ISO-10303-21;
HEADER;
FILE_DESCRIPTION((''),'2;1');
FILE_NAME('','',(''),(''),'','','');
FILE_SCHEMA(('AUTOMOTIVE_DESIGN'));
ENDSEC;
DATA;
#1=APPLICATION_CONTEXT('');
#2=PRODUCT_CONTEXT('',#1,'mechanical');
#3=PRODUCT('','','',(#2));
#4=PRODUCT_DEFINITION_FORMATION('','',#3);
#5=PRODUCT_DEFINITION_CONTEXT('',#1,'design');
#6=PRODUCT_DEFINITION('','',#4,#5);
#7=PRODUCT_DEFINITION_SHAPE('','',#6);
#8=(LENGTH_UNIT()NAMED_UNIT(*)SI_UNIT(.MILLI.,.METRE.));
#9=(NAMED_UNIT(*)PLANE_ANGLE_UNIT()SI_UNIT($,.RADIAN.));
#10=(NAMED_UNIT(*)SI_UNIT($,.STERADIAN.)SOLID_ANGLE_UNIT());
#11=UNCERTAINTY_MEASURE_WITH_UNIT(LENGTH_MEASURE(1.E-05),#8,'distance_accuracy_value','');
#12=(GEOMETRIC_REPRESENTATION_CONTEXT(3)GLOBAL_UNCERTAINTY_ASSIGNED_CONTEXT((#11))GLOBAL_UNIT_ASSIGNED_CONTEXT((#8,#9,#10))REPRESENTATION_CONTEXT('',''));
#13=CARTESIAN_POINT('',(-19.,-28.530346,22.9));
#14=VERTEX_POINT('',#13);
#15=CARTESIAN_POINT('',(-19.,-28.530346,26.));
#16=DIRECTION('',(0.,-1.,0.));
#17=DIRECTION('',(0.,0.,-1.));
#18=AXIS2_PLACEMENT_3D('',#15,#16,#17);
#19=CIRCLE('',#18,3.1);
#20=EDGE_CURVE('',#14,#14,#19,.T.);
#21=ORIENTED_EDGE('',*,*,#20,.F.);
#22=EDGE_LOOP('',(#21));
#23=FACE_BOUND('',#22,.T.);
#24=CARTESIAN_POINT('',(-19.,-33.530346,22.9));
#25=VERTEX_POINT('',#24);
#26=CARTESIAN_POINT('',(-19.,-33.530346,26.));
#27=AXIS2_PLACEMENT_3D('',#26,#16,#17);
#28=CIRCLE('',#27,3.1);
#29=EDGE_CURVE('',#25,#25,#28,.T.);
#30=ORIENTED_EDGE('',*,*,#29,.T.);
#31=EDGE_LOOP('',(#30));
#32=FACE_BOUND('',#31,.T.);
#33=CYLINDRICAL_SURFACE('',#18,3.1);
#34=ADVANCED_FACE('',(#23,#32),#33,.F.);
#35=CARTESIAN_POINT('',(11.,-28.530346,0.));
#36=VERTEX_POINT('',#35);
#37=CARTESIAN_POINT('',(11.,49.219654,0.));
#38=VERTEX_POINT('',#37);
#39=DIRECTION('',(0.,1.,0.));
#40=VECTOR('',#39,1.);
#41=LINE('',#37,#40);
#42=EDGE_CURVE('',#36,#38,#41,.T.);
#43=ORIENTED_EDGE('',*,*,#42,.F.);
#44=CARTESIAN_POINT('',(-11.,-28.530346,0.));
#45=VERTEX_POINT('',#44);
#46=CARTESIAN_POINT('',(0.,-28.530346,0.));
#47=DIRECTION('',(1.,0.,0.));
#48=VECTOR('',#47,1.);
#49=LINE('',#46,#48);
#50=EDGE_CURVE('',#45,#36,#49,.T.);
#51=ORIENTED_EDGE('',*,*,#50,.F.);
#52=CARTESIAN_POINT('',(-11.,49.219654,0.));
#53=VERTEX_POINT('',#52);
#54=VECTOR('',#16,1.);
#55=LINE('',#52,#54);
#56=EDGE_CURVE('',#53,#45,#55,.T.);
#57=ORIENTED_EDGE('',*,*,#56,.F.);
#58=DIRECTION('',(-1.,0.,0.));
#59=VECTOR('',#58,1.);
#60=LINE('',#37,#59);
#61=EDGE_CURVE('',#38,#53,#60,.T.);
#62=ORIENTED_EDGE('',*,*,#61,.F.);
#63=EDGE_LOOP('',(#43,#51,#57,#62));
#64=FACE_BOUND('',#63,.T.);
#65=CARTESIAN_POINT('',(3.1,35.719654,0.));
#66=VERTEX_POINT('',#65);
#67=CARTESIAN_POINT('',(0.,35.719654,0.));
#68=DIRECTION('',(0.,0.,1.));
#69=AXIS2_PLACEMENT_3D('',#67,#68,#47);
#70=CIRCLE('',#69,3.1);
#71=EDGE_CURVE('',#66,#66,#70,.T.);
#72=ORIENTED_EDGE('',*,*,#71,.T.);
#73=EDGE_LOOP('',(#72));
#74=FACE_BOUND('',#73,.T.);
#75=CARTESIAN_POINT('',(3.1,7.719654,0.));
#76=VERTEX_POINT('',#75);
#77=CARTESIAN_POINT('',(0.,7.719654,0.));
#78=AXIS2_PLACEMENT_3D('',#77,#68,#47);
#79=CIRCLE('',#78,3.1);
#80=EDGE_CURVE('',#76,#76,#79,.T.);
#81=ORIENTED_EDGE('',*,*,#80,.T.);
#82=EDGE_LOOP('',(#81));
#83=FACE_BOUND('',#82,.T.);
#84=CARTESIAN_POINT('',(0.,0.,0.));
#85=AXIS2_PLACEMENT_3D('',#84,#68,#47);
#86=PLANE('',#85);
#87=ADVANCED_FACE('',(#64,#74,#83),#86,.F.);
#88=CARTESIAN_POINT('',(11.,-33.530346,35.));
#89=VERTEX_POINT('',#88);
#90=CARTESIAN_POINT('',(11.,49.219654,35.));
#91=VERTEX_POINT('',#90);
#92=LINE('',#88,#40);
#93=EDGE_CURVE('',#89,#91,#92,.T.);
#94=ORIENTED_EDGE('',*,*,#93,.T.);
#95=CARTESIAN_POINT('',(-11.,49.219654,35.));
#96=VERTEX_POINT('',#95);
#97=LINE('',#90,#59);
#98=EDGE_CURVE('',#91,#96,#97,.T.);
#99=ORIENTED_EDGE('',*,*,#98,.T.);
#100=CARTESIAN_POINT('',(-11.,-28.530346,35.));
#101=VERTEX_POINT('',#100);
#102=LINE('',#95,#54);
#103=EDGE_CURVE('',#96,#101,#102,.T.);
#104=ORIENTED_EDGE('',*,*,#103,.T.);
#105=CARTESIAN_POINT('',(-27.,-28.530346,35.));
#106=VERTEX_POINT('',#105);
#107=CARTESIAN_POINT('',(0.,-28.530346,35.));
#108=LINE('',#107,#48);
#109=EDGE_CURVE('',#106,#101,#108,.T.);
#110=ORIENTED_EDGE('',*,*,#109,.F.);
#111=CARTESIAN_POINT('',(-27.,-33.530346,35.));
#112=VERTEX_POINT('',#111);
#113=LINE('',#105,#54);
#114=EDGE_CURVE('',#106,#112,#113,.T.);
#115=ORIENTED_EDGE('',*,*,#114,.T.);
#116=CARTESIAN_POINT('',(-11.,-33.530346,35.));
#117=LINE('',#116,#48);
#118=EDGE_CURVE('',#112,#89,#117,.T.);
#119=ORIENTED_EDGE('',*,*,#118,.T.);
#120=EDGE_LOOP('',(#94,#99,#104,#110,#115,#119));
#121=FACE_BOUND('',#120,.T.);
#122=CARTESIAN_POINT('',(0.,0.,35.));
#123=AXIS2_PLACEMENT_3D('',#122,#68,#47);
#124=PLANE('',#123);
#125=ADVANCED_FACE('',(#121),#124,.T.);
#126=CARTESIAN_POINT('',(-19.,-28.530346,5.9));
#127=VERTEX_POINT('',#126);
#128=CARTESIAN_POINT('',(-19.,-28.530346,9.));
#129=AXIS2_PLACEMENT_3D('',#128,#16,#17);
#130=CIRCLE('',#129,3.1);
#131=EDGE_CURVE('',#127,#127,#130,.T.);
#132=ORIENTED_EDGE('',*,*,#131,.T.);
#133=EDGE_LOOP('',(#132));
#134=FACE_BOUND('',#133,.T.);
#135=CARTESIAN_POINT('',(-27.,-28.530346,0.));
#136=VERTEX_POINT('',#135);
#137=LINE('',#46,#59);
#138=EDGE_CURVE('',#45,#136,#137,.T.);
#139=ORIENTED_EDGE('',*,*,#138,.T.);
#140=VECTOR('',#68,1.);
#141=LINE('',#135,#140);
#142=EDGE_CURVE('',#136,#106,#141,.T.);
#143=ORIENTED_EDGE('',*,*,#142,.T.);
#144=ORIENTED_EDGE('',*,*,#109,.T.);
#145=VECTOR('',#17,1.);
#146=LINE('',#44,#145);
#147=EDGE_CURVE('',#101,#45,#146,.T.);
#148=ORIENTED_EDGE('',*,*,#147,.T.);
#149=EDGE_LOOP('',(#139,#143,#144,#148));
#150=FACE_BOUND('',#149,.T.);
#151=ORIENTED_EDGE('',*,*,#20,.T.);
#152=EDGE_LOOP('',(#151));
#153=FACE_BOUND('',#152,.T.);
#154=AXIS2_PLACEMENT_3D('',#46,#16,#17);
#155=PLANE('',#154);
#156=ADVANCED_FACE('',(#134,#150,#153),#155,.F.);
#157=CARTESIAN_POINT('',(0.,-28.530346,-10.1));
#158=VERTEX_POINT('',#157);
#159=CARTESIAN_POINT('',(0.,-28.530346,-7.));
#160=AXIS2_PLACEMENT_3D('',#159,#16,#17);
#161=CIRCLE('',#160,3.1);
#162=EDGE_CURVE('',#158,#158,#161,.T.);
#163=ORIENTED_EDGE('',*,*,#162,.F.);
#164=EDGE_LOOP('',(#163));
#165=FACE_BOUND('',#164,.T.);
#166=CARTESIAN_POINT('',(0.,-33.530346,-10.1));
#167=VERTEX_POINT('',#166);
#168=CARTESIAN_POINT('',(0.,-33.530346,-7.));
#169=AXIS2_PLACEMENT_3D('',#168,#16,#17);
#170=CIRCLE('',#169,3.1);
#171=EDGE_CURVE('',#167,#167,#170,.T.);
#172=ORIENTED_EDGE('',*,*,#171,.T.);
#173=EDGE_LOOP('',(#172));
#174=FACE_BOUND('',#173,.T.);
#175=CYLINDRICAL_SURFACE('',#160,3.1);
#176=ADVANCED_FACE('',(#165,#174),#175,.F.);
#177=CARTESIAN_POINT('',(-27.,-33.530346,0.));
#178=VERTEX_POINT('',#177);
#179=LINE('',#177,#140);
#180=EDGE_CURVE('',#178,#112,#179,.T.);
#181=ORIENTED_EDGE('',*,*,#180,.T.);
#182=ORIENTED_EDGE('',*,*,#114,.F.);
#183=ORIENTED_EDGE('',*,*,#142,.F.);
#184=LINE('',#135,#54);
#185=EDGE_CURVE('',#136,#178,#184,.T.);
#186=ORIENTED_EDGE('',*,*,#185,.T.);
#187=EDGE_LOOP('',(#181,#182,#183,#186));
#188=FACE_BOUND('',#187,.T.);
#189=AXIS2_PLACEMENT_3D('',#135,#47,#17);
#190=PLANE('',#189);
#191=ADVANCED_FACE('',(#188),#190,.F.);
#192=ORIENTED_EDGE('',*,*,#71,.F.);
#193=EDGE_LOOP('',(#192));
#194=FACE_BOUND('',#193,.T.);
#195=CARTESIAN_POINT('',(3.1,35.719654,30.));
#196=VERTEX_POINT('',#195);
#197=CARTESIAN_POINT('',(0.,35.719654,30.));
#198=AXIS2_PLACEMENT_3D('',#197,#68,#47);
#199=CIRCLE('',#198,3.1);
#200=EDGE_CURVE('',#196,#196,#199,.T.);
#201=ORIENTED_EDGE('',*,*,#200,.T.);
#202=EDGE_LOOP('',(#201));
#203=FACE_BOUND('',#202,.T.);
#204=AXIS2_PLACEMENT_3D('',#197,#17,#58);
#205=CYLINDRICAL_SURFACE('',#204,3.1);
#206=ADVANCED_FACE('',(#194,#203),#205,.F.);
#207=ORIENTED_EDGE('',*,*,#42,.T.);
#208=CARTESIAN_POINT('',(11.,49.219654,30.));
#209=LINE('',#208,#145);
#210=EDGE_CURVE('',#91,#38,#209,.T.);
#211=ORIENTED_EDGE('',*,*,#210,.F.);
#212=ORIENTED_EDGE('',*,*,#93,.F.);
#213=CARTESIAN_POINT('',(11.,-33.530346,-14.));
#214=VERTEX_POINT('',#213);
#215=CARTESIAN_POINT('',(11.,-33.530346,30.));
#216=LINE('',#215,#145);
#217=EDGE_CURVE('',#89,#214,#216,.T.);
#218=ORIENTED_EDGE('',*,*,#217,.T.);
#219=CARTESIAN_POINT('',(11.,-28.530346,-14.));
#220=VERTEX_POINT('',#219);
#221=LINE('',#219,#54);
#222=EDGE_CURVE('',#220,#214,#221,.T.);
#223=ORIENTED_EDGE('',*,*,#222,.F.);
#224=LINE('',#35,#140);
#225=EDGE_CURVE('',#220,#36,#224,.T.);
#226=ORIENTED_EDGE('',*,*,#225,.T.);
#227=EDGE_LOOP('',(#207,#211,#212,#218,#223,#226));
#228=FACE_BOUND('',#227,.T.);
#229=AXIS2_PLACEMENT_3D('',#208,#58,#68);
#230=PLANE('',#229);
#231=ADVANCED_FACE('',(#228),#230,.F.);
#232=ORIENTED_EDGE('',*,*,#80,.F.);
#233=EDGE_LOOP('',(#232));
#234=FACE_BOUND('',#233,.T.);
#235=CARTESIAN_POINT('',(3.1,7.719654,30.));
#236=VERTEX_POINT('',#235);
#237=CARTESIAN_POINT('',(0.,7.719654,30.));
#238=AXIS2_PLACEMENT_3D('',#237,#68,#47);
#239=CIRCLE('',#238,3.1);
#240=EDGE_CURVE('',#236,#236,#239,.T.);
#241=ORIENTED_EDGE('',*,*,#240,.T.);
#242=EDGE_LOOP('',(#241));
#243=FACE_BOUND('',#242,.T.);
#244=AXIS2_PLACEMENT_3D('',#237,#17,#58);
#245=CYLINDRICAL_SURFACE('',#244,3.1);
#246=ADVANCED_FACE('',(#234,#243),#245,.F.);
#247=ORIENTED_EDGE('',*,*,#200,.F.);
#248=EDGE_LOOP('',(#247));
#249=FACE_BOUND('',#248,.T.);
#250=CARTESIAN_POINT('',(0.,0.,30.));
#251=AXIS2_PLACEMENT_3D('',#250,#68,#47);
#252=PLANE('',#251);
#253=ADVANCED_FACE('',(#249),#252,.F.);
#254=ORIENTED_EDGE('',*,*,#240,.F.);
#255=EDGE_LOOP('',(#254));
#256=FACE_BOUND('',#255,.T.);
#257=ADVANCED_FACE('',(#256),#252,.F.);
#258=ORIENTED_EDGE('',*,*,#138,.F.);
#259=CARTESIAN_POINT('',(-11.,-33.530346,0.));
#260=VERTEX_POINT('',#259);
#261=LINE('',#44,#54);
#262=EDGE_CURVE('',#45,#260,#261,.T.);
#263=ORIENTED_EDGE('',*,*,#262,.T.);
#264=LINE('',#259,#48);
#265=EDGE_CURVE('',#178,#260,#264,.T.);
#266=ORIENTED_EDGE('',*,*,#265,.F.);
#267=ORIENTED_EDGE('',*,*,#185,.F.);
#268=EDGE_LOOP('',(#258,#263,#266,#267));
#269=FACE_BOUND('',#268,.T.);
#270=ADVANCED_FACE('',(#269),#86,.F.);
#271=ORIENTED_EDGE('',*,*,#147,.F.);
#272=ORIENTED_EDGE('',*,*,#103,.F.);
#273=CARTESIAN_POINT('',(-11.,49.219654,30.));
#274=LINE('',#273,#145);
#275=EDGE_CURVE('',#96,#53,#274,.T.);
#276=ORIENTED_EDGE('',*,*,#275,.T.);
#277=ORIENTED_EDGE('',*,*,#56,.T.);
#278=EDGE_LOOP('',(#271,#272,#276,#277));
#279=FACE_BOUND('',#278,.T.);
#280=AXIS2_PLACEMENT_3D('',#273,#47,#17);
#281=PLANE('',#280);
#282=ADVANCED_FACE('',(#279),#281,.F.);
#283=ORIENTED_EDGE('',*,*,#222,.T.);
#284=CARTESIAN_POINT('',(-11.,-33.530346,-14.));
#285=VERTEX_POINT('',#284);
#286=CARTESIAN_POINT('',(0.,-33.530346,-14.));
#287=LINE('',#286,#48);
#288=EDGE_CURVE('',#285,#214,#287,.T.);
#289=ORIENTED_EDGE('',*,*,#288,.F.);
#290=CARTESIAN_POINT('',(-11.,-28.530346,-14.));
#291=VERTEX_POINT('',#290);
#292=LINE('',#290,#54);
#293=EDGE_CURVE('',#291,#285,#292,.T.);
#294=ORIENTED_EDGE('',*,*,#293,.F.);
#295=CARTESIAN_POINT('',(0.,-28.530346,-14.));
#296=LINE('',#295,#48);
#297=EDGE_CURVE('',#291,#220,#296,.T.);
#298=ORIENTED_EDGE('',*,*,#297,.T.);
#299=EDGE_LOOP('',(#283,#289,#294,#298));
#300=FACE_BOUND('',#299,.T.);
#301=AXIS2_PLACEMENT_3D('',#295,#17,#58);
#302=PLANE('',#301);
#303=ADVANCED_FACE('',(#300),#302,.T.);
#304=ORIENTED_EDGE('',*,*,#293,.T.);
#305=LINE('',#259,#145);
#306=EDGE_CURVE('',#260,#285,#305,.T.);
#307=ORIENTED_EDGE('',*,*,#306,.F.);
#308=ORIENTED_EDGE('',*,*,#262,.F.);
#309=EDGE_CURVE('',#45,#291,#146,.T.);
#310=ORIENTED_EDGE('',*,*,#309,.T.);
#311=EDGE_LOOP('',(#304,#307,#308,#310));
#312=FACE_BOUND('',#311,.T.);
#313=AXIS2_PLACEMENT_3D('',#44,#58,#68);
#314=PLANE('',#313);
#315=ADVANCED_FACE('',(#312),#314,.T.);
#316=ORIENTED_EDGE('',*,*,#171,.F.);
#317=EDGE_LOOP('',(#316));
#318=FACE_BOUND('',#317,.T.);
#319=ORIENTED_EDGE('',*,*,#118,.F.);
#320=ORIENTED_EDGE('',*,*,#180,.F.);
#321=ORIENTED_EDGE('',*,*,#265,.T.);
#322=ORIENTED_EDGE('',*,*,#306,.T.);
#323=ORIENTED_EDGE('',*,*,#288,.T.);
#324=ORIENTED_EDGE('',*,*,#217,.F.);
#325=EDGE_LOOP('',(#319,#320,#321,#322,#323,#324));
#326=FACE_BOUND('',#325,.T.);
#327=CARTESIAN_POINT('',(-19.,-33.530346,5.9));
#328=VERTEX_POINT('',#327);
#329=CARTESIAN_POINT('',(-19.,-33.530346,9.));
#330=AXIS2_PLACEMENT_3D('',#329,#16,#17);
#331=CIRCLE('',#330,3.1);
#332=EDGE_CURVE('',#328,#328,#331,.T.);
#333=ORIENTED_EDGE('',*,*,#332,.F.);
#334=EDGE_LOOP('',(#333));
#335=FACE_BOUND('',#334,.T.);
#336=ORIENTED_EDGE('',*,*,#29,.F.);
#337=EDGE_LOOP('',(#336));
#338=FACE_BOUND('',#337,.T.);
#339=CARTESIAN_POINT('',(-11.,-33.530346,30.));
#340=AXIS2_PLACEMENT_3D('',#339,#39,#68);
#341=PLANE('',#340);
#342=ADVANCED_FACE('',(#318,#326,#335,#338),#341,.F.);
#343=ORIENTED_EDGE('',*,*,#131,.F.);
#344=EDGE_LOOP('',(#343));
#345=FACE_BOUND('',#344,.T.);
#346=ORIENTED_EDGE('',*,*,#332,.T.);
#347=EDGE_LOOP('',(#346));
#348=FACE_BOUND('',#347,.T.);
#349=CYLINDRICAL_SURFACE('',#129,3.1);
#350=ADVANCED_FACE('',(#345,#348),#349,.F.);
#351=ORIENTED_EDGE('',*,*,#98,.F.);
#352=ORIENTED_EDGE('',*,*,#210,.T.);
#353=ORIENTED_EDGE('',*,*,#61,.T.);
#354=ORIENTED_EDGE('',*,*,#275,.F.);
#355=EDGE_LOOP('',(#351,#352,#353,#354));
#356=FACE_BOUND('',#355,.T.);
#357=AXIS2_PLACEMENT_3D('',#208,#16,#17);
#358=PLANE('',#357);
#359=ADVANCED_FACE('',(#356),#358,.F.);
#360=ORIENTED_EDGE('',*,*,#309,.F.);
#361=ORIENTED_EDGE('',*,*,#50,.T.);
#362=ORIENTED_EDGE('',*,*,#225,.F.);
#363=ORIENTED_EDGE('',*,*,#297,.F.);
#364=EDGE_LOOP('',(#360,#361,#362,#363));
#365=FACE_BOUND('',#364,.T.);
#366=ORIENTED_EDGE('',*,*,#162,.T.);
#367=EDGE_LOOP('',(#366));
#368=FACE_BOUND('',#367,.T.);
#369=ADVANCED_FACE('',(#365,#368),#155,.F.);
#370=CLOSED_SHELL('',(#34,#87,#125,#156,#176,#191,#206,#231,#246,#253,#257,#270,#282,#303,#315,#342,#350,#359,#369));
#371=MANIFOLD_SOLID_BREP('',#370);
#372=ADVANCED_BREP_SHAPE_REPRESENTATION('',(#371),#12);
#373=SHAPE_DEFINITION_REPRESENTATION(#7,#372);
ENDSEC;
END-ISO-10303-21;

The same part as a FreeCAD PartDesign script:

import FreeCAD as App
import Part
import Sketcher
from FreeCAD import Vector

doc = App.newDocument("Part")
body = doc.addObject("PartDesign::Body", "Body")

# Sketch on XY plane
sketch1 = doc.addObject("Sketcher::SketchObject", "Sketch")
body.addObject(sketch1)
sketch1.AttachmentSupport = (doc.XY_Plane, [""])
sketch1.MapMode = "FlatFace"
sketch1.addGeometry([
    Part.LineSegment(Vector(-11, 49.219654, 0), Vector(-11, -33.530346, 0)),  # 0
    Part.LineSegment(Vector(-11, -33.530346, 0), Vector(11, -33.530346, 0)),  # 1
    Part.LineSegment(Vector(11, -33.530346, 0), Vector(11, 49.219654, 0)),  # 2
    Part.LineSegment(Vector(11, 49.219654, 0), Vector(-11, 49.219654, 0)),  # 3
    Part.Circle(Vector(0, 7.719654, 0), Vector(0, 0, 1), 3.1),  # 4
    Part.Circle(Vector(0, 35.719654, 0), Vector(0, 0, 1), 3.1),  # 5
], False)
sketch1.addConstraint([
    Sketcher.Constraint("Coincident", 0, 2, 1, 1),
    Sketcher.Constraint("Coincident", 1, 2, 2, 1),
    Sketcher.Constraint("Coincident", 2, 2, 3, 1),
    Sketcher.Constraint("Coincident", 3, 2, 0, 1),
    Sketcher.Constraint("Vertical", 0),
    Sketcher.Constraint("Horizontal", 1),
    Sketcher.Constraint("Vertical", 2),
    Sketcher.Constraint("Horizontal", 3),
    Sketcher.Constraint("Equal", 4, 5),
    Sketcher.Constraint("PointOnObject", 4, 3, -2),
    Sketcher.Constraint("PointOnObject", 5, 3, -2),
    Sketcher.Constraint("Diameter", 4, 6.2),
    Sketcher.Constraint("DistanceX", 1, 1, 1, 2, 22.0),
    Sketcher.Constraint("DistanceX", 0, 2, -1, 1, 11.0),
    Sketcher.Constraint("DistanceY", 4, 3, 5, 3, 28.0),
    Sketcher.Constraint("DistanceY", 0, 2, 0, 1, 82.75),
    Sketcher.Constraint("DistanceY", 5, 3, 2, 2, 13.5),
    Sketcher.Constraint("DistanceY", -1, 1, 4, 3, 7.719654),
])
pad1 = doc.addObject("PartDesign::Pad", "Pad")
body.addObject(pad1)
pad1.Profile = sketch1
pad1.Length = 30

# Sketch on XY plane
sketch2 = doc.addObject("Sketcher::SketchObject", "Sketch001")
body.addObject(sketch2)
sketch2.AttachmentSupport = (doc.XY_Plane, [""])
sketch2.MapMode = "FlatFace"
sketch2.AttachmentOffset = App.Placement(Vector(0, 0, 30), App.Rotation())
sketch2.addGeometry([
    Part.LineSegment(Vector(-11, 49.219654, 0), Vector(-11, -33.530346, 0)),
    Part.LineSegment(Vector(-11, -33.530346, 0), Vector(11, -33.530346, 0)),
    Part.LineSegment(Vector(11, -33.530346, 0), Vector(11, 49.219654, 0)),
    Part.LineSegment(Vector(11, 49.219654, 0), Vector(-11, 49.219654, 0)),
], False)
sketch2.addConstraint([
    Sketcher.Constraint("Coincident", 0, 2, 1, 1),
    Sketcher.Constraint("Coincident", 1, 2, 2, 1),
    Sketcher.Constraint("Coincident", 2, 2, 3, 1),
    Sketcher.Constraint("Coincident", 3, 2, 0, 1),
    Sketcher.Constraint("Vertical", 0),
    Sketcher.Constraint("Horizontal", 1),
    Sketcher.Constraint("Vertical", 2),
    Sketcher.Constraint("Horizontal", 3),
    Sketcher.Constraint("DistanceX", 1, 1, 1, 2, 22.0),
    Sketcher.Constraint("DistanceX", 0, 2, -1, 1, 11.0),
    Sketcher.Constraint("DistanceY", 0, 2, 0, 1, 82.75),
    Sketcher.Constraint("DistanceY", 0, 2, -1, 1, 33.530346),
])
pad2 = doc.addObject("PartDesign::Pad", "Pad001")
body.addObject(pad2)
pad2.Profile = sketch2
pad2.Length = 5

# Sketch on XZ plane
sketch3 = doc.addObject("Sketcher::SketchObject", "Sketch002")
body.addObject(sketch3)
sketch3.AttachmentSupport = (doc.XZ_Plane, [""])
sketch3.MapMode = "FlatFace"
sketch3.AttachmentOffset = App.Placement(Vector(0, 0, 33.530346), App.Rotation())
sketch3.addGeometry([
    Part.LineSegment(Vector(-27, 35, 0), Vector(-27, 0, 0)),  # 0
    Part.LineSegment(Vector(-27, 0, 0), Vector(-11, 0, 0)),  # 1
    Part.LineSegment(Vector(-11, 0, 0), Vector(-11, 35, 0)),  # 2
    Part.LineSegment(Vector(-11, 35, 0), Vector(-27, 35, 0)),  # 3
    Part.Circle(Vector(-19, 9, 0), Vector(0, 0, 1), 3.1),  # 4
    Part.Circle(Vector(-19, 26, 0), Vector(0, 0, 1), 3.1),  # 5
    Part.LineSegment(Vector(-11, 0, 0), Vector(-11, -14, 0)),  # 6
    Part.LineSegment(Vector(-11, -14, 0), Vector(11, -14, 0)),  # 7
    Part.LineSegment(Vector(11, -14, 0), Vector(11, 0, 0)),  # 8
    Part.LineSegment(Vector(11, 0, 0), Vector(-11, 0, 0)),  # 9
    Part.Circle(Vector(0, -7, 0), Vector(0, 0, 1), 3.1),  # 10
], False)
sketch3.addConstraint([
    Sketcher.Constraint("Coincident", 0, 2, 1, 1),
    Sketcher.Constraint("Coincident", 1, 2, 2, 1),
    Sketcher.Constraint("Coincident", 2, 2, 3, 1),
    Sketcher.Constraint("Coincident", 3, 2, 0, 1),
    Sketcher.Constraint("Coincident", 6, 2, 7, 1),
    Sketcher.Constraint("Coincident", 7, 2, 8, 1),
    Sketcher.Constraint("Coincident", 8, 2, 9, 1),
    Sketcher.Constraint("Coincident", 9, 2, 6, 1),
    Sketcher.Constraint("Vertical", 0),
    Sketcher.Constraint("Horizontal", 1),
    Sketcher.Constraint("Vertical", 2),
    Sketcher.Constraint("Horizontal", 3),
    Sketcher.Constraint("Vertical", 6),
    Sketcher.Constraint("Horizontal", 7),
    Sketcher.Constraint("Vertical", 8),
    Sketcher.Constraint("Horizontal", 9),
    Sketcher.Constraint("Coincident", 9, 2, 1, 2),
    Sketcher.Constraint("Equal", 4, 5),
    Sketcher.Constraint("Equal", 5, 10),
    Sketcher.Constraint("Symmetric", 1, 2, 8, 2, -1, 1),
    Sketcher.Constraint("PointOnObject", 10, 3, -2),
    Sketcher.Constraint("Vertical", 4, 3, 5, 3),
    Sketcher.Constraint("Diameter", 4, 6.2),
    Sketcher.Constraint("DistanceX", 1, 1, 1, 2, 16.0),
    Sketcher.Constraint("DistanceX", 7, 1, 7, 2, 22.0),
    Sketcher.Constraint("DistanceY", 0, 2, 0, 1, 35.0),
    Sketcher.Constraint("DistanceY", 6, 2, 6, 1, 14.0),
    Sketcher.Constraint("DistanceX", 4, 3, -1, 1, 19.0),
    Sketcher.Constraint("DistanceY", -1, 1, 4, 3, 9.0),
    Sketcher.Constraint("DistanceY", -1, 1, 5, 3, 26.0),
    Sketcher.Constraint("DistanceY", 10, 3, -1, 1, 7.0),
])
pad3 = doc.addObject("PartDesign::Pad", "Pad002")
body.addObject(pad3)
pad3.Profile = sketch3
pad3.Length = 5
pad3.Reversed = True

doc.recompute()
